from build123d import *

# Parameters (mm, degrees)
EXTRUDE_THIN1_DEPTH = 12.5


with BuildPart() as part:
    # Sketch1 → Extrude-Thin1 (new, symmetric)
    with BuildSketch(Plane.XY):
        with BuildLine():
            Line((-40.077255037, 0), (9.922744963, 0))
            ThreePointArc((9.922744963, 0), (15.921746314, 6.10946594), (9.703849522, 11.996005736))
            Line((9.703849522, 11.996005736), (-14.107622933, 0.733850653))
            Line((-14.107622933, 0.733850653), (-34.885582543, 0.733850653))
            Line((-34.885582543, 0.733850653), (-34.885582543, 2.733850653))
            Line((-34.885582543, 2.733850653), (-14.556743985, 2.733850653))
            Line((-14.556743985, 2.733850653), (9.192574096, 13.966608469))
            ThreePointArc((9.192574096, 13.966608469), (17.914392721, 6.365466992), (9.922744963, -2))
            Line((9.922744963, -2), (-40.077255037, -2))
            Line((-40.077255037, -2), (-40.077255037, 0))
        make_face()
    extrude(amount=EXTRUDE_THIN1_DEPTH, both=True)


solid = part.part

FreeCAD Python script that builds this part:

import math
import FreeCAD as App
import Part
import Sketcher

V = App.Vector

doc = App.newDocument("Part")
body = doc.addObject("PartDesign::Body", "Body")

# Sketch on XY plane
sketch1 = body.newObject("Sketcher::SketchObject", "Sketch")
sketch1.AttachmentSupport = (doc.getObject("XY_Plane"), [""])
sketch1.MapMode = "FlatFace"
sketch1.addGeometry(Part.LineSegment(V(9.922745, 0, 0), V(-40.077255, 0, 0)), False)
sketch1.addGeometry(Part.LineSegment(V(-40.077255, 0, 0), V(-40.077255, -2, 0)), False)
sketch1.addGeometry(Part.LineSegment(V(-40.077255, -2, 0), V(9.922745, -2, 0)), False)
sketch1.addGeometry(Part.ArcOfCircle(Part.Circle(V(9.922745, 6, 0), V(0, 0, 1), 8), math.radians(-90), math.radians(95.236752)), False)
sketch1.addGeometry(Part.LineSegment(V(9.192574, 13.966608, 0), V(-14.556744, 2.733851, 0)), False)
sketch1.addGeometry(Part.LineSegment(V(-14.556744, 2.733851, 0), V(-34.885583, 2.733851, 0)), False)
sketch1.addGeometry(Part.LineSegment(V(-34.885583, 2.733851, 0), V(-34.885583, 0.733851, 0)), False)
sketch1.addGeometry(Part.LineSegment(V(-34.885583, 0.733851, 0), V(-14.107623, 0.733851, 0)), False)
sketch1.addGeometry(Part.LineSegment(V(-14.107623, 0.733851, 0), V(9.70385, 11.996006, 0)), False)
sketch1.addGeometry(Part.ArcOfCircle(Part.Circle(V(9.922745, 6, 0), V(0, 0, 1), 6), math.radians(-90), math.radians(92.090761)), False)
sketch1.addConstraint(Sketcher.Constraint("Coincident", 0, 2, 1, 1))
sketch1.addConstraint(Sketcher.Constraint("Coincident", 1, 2, 2, 1))
sketch1.addConstraint(Sketcher.Constraint("Tangent", 2, 2, 3, 1))
sketch1.addConstraint(Sketcher.Constraint("Coincident", 3, 2, 4, 1))
sketch1.addConstraint(Sketcher.Constraint("Coincident", 4, 2, 5, 1))
sketch1.addConstraint(Sketcher.Constraint("Coincident", 5, 2, 6, 1))
sketch1.addConstraint(Sketcher.Constraint("Coincident", 6, 2, 7, 1))
sketch1.addConstraint(Sketcher.Constraint("Coincident", 7, 2, 8, 1))
sketch1.addConstraint(Sketcher.Constraint("Coincident", 8, 2, 9, 2))
sketch1.addConstraint(Sketcher.Constraint("Tangent", 9, 1, 0, 1))
sketch1.addConstraint(Sketcher.Constraint("Horizontal", 0))
sketch1.addConstraint(Sketcher.Constraint("Vertical", 1))
sketch1.addConstraint(Sketcher.Constraint("Horizontal", 2))
sketch1.addConstraint(Sketcher.Constraint("Horizontal", 5))
sketch1.addConstraint(Sketcher.Constraint("Vertical", 6))
sketch1.addConstraint(Sketcher.Constraint("Horizontal", 7))
sketch1.addConstraint(Sketcher.Constraint("Coincident", 9, 3, 3, 3))
sketch1.addConstraint(Sketcher.Constraint("PointOnObject", 0, 2, -1))
sketch1.addConstraint(Sketcher.Constraint("Parallel", 4, 8))
sketch1.addConstraint(Sketcher.Constraint("Equal", 1, 6))
sketch1.addConstraint(Sketcher.Constraint("Radius", 3, 8.0))
sketch1.addConstraint(Sketcher.Constraint("Radius", 9, 6.0))
sketch1.addConstraint(Sketcher.Constraint("DistanceX", 0, 2, 0, 1, 50.0))
sketch1.addConstraint(Sketcher.Constraint("DistanceX", 5, 2, 5, 1, 20.328839))
sketch1.addConstraint(Sketcher.Constraint("DistanceX", 7, 1, 7, 2, 20.77796))
sketch1.addConstraint(Sketcher.Constraint("DistanceY", -1, 1, 3, 2, 13.966608))
sketch1.addConstraint(Sketcher.Constraint("DistanceY", -1, 1, 4, 2, 2.733851))
sketch1.addConstraint(Sketcher.Constraint("DistanceX", -1, 1, 8, 2, 9.70385))
sketch1.addConstraint(Sketcher.Constraint("DistanceX", 4, 2, 9, 3, 24.479489))
pad1 = body.newObject("PartDesign::Pad", "Pad")
pad1.Profile = sketch1
pad1.Length = 25
pad1.Midplane = True

doc.recompute()
